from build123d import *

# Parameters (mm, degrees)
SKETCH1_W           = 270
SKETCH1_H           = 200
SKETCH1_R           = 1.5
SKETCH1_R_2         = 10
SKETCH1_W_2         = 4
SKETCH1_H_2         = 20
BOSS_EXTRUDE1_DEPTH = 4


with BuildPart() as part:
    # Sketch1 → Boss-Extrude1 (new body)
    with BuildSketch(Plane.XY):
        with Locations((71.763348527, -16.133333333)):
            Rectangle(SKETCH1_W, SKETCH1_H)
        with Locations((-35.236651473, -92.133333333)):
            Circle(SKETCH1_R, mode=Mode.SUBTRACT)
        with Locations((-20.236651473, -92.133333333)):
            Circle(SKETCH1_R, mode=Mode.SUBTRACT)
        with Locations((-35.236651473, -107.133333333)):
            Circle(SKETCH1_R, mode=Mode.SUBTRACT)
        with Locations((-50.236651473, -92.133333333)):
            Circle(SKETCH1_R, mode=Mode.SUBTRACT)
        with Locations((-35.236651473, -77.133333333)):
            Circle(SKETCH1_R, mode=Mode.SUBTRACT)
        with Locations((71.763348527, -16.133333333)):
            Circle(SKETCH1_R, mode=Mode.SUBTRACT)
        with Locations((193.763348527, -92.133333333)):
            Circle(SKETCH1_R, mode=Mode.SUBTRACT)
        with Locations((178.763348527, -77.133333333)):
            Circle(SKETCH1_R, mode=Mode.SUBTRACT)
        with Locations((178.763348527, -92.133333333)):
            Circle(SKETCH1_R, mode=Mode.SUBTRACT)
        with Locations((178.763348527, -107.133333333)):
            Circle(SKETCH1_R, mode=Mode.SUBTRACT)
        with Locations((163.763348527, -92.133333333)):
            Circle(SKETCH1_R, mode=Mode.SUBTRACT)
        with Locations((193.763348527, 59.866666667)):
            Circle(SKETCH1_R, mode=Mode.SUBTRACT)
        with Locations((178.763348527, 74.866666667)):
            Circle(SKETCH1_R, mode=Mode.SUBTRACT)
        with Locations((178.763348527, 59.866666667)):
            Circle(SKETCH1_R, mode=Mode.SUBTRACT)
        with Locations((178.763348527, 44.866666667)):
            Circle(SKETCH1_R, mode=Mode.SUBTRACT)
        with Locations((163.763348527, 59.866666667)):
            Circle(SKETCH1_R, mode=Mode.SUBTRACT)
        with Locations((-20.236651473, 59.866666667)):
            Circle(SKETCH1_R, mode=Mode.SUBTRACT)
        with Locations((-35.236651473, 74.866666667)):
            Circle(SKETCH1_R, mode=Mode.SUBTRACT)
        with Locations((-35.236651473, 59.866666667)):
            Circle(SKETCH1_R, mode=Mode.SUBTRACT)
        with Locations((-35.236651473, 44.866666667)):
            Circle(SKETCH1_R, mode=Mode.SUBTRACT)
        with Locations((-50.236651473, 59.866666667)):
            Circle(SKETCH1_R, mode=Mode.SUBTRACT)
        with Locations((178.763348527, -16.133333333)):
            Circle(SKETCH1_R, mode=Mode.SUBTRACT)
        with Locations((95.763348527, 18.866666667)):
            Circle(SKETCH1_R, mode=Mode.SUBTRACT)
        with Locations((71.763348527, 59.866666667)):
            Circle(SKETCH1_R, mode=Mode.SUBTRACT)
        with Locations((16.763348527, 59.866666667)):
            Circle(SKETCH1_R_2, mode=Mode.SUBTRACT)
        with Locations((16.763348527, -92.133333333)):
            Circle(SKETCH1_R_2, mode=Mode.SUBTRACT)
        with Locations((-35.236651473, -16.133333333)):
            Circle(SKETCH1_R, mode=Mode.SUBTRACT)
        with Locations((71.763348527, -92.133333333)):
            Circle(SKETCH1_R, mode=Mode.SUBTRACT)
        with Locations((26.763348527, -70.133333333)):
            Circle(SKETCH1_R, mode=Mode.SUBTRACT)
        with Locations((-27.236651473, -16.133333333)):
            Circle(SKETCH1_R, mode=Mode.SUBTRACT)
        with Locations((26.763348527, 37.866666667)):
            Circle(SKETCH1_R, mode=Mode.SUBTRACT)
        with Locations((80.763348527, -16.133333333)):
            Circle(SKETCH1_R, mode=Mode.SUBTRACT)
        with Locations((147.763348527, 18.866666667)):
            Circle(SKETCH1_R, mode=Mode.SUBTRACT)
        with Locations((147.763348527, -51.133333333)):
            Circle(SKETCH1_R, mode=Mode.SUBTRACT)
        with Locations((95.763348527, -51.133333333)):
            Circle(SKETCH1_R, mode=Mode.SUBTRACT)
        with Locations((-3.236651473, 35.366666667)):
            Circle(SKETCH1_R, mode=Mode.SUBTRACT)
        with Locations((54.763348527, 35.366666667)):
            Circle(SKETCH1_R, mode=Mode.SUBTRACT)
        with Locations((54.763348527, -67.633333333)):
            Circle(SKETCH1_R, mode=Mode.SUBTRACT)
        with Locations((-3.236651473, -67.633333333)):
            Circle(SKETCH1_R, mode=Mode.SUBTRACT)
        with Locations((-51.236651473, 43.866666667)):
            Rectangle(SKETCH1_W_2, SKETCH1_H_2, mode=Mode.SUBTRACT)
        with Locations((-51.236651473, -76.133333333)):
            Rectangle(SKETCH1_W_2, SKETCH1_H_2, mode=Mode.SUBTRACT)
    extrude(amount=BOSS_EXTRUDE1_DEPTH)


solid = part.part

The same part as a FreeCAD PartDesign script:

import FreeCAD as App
import Part
import Sketcher
Q = App.Units.Quantity

doc = App.newDocument("Part")
params = doc.addObject("Spreadsheet::Sheet", "Params")
for row, (alias, value) in enumerate([
    ("sketch1_diameter", "3 mm"),
    ("sketch1_diameter2", "20 mm"),
    ("sketch1_width", "270 mm"),
    ("sketch1_width2", "4 mm"),
    ("sketch1_height", "200 mm"),
    ("pad1_length", "4 mm"),
], start=1):
    params.set(f"A{row}", alias)
    params.set(f"B{row}", "=" + value)
    params.setAlias(f"B{row}", alias)

body = doc.addObject("PartDesign::Body", "Body")

# Sketch on XY plane
sketch1 = body.newObject("Sketcher::SketchObject", "Sketch")
sketch1.AttachmentSupport = (doc.getObject("XY_Plane"), [""])
sketch1.MapMode = "FlatFace"
sketch1.addGeometry([
    Part.LineSegment(App.Vector(-63.2, 83.9, 0), App.Vector(-63.2, -116.1, 0)),  # 0
    Part.LineSegment(App.Vector(-63.2, -116.1, 0), App.Vector(206.8, -116.1, 0)),  # 1
    Part.LineSegment(App.Vector(206.8, -116.1, 0), App.Vector(206.8, 83.9, 0)),  # 2
    Part.LineSegment(App.Vector(206.8, 83.9, 0), App.Vector(-63.2, 83.9, 0)),  # 3
    Part.Circle(App.Vector(-35.2, -107.1, 0), App.Vector(0, 0, 1), 1.5),  # 4
    Part.Circle(App.Vector(-50.2, -92.1, 0), App.Vector(0, 0, 1), 1.5),  # 5
    Part.Circle(App.Vector(-35.2, -92.1, 0), App.Vector(0, 0, 1), 1.5),  # 6
    Part.Circle(App.Vector(-20.2, -92.1, 0), App.Vector(0, 0, 1), 1.5),  # 7
    Part.LineSegment(App.Vector(-49.2, -86.1, 0), App.Vector(-53.2, -86.1, 0)),  # 8
    Part.LineSegment(App.Vector(-53.2, -86.1, 0), App.Vector(-53.2, -66.1, 0)),  # 9
    Part.LineSegment(App.Vector(-53.2, -66.1, 0), App.Vector(-49.2, -66.1, 0)),  # 10
    Part.LineSegment(App.Vector(-49.2, -66.1, 0), App.Vector(-49.2, -86.1, 0)),  # 11
    Part.Circle(App.Vector(-35.2, -77.1, 0), App.Vector(0, 0, 1), 1.5),  # 12
    Part.Circle(App.Vector(-3.2, -67.6, 0), App.Vector(0, 0, 1), 1.5),  # 13
    Part.Circle(App.Vector(16.8, -92.1, 0), App.Vector(0, 0, 1), 10),  # 14
    Part.Circle(App.Vector(26.8, -70.1, 0), App.Vector(0, 0, 1), 1.5),  # 15
    Part.Circle(App.Vector(54.8, -67.6, 0), App.Vector(0, 0, 1), 1.5),  # 16
    Part.Circle(App.Vector(71.8, -92.1, 0), App.Vector(0, 0, 1), 1.5),  # 17
    Part.Circle(App.Vector(163.8, -92.1, 0), App.Vector(0, 0, 1), 1.5),  # 18
    Part.Circle(App.Vector(178.8, -107.1, 0), App.Vector(0, 0, 1), 1.5),  # 19
    Part.Circle(App.Vector(178.8, -92.1, 0), App.Vector(0, 0, 1), 1.5),  # 20
    Part.Circle(App.Vector(193.8, -92.1, 0), App.Vector(0, 0, 1), 1.5),  # 21
    Part.Circle(App.Vector(178.8, -77.1, 0), App.Vector(0, 0, 1), 1.5),  # 22
    Part.Circle(App.Vector(95.8, -51.1, 0), App.Vector(0, 0, 1), 1.5),  # 23
    Part.Circle(App.Vector(147.8, -51.1, 0), App.Vector(0, 0, 1), 1.5),  # 24
    Part.Circle(App.Vector(-35.2, -16.1, 0), App.Vector(0, 0, 1), 1.5),  # 25
    Part.Circle(App.Vector(-27.2, -16.1, 0), App.Vector(0, 0, 1), 1.5),  # 26
    Part.LineSegment(App.Vector(-49.2, 33.9, 0), App.Vector(-53.2, 33.9, 0)),  # 27
    Part.LineSegment(App.Vector(-53.2, 33.9, 0), App.Vector(-53.2, 53.9, 0)),  # 28
    Part.LineSegment(App.Vector(-53.2, 53.9, 0), App.Vector(-49.2, 53.9, 0)),  # 29
    Part.LineSegment(App.Vector(-49.2, 53.9, 0), App.Vector(-49.2, 33.9, 0)),  # 30
    Part.Circle(App.Vector(-35.2, 44.9, 0), App.Vector(0, 0, 1), 1.5),  # 31
    Part.Circle(App.Vector(-3.2, 35.4, 0), App.Vector(0, 0, 1), 1.5),  # 32
    Part.Circle(App.Vector(-50.2, 59.9, 0), App.Vector(0, 0, 1), 1.5),  # 33
    Part.Circle(App.Vector(-35.2, 59.9, 0), App.Vector(0, 0, 1), 1.5),  # 34
    Part.Circle(App.Vector(-35.2, 74.9, 0), App.Vector(0, 0, 1), 1.5),  # 35
    Part.Circle(App.Vector(-20.2, 59.9, 0), App.Vector(0, 0, 1), 1.5),  # 36
    Part.Circle(App.Vector(26.8, 37.9, 0), App.Vector(0, 0, 1), 1.5),  # 37
    Part.Circle(App.Vector(54.8, 35.4, 0), App.Vector(0, 0, 1), 1.5),  # 38
    Part.Circle(App.Vector(16.8, 59.9, 0), App.Vector(0, 0, 1), 10),  # 39
    Part.Circle(App.Vector(71.8, -16.1, 0), App.Vector(0, 0, 1), 1.5),  # 40
    Part.Circle(App.Vector(80.8, -16.1, 0), App.Vector(0, 0, 1), 1.5),  # 41
    Part.Circle(App.Vector(95.8, 18.9, 0), App.Vector(0, 0, 1), 1.5),  # 42
    Part.Circle(App.Vector(178.8, -16.1, 0), App.Vector(0, 0, 1), 1.5),  # 43
    Part.Circle(App.Vector(147.8, 18.9, 0), App.Vector(0, 0, 1), 1.5),  # 44
    Part.Circle(App.Vector(71.8, 59.9, 0), App.Vector(0, 0, 1), 1.5),  # 45
    Part.Circle(App.Vector(178.8, 44.9, 0), App.Vector(0, 0, 1), 1.5),  # 46
    Part.Circle(App.Vector(163.8, 59.9, 0), App.Vector(0, 0, 1), 1.5),  # 47
    Part.Circle(App.Vector(178.8, 59.9, 0), App.Vector(0, 0, 1), 1.5),  # 48
    Part.Circle(App.Vector(193.8, 59.9, 0), App.Vector(0, 0, 1), 1.5),  # 49
    Part.Circle(App.Vector(178.8, 74.9, 0), App.Vector(0, 0, 1), 1.5),  # 50
], False)
sketch1.addConstraint([
    Sketcher.Constraint("Coincident", 0, 2, 1, 1),
    Sketcher.Constraint("Coincident", 1, 2, 2, 1),
    Sketcher.Constraint("Coincident", 2, 2, 3, 1),
    Sketcher.Constraint("Coincident", 3, 2, 0, 1),
    Sketcher.Constraint("Coincident", 8, 2, 9, 1),
    Sketcher.Constraint("Coincident", 9, 2, 10, 1),
    Sketcher.Constraint("Coincident", 10, 2, 11, 1),
    Sketcher.Constraint("Coincident", 11, 2, 8, 1),
    Sketcher.Constraint("Coincident", 27, 2, 28, 1),
    Sketcher.Constraint("Coincident", 28, 2, 29, 1),
    Sketcher.Constraint("Coincident", 29, 2, 30, 1),
    Sketcher.Constraint("Coincident", 30, 2, 27, 1),
    Sketcher.Constraint("Vertical", 0),
    Sketcher.Constraint("Horizontal", 1),
    Sketcher.Constraint("Vertical", 2),
    Sketcher.Constraint("Horizontal", 3),
    Sketcher.Constraint("Horizontal", 8),
    Sketcher.Constraint("Vertical", 9),
    Sketcher.Constraint("Horizontal", 10),
    Sketcher.Constraint("Vertical", 11),
    Sketcher.Constraint("Horizontal", 27),
    Sketcher.Constraint("Vertical", 28),
    Sketcher.Constraint("Horizontal", 29),
    Sketcher.Constraint("Vertical", 30),
    Sketcher.Constraint("Equal", 4, 5),
    Sketcher.Constraint("Equal", 5, 6),
    Sketcher.Constraint("Equal", 6, 7),
    Sketcher.Constraint("Equal", 7, 12),
    Sketcher.Constraint("Equal", 12, 13),
    Sketcher.Constraint("Equal", 13, 15),
    Sketcher.Constraint("Equal", 15, 16),
    Sketcher.Constraint("Equal", 16, 17),
    Sketcher.Constraint("Equal", 17, 18),
    Sketcher.Constraint("Equal", 18, 19),
    Sketcher.Constraint("Equal", 19, 20),
    Sketcher.Constraint("Equal", 20, 21),
    Sketcher.Constraint("Equal", 21, 22),
    Sketcher.Constraint("Equal", 22, 23),
    Sketcher.Constraint("Equal", 23, 24),
    Sketcher.Constraint("Equal", 24, 25),
    Sketcher.Constraint("Equal", 25, 26),
    Sketcher.Constraint("Equal", 26, 31),
    Sketcher.Constraint("Equal", 31, 32),
    Sketcher.Constraint("Equal", 32, 33),
    Sketcher.Constraint("Equal", 33, 34),
    Sketcher.Constraint("Equal", 34, 35),
    Sketcher.Constraint("Equal", 35, 36),
    Sketcher.Constraint("Equal", 36, 37),
    Sketcher.Constraint("Equal", 37, 38),
    Sketcher.Constraint("Equal", 14, 39),
    Sketcher.Constraint("Equal", 38, 40),
    Sketcher.Constraint("Equal", 40, 41),
    Sketcher.Constraint("Equal", 41, 42),
    Sketcher.Constraint("Equal", 42, 43),
    Sketcher.Constraint("Equal", 43, 44),
    Sketcher.Constraint("Equal", 44, 45),
    Sketcher.Constraint("Equal", 45, 46),
    Sketcher.Constraint("Equal", 46, 47),
    Sketcher.Constraint("Equal", 47, 48),
    Sketcher.Constraint("Equal", 48, 49),
    Sketcher.Constraint("Equal", 49, 50),
    Sketcher.Constraint("Horizontal", 5, 3, 6, 3),
    Sketcher.Constraint("Horizontal", 6, 3, 7, 3),
    Sketcher.Constraint("Horizontal", 7, 3, 14, 3),
    Sketcher.Constraint("Horizontal", 13, 3, 16, 3),
    Sketcher.Constraint("Horizontal", 14, 3, 17, 3),
    Sketcher.Constraint("Horizontal", 17, 3, 18, 3),
    Sketcher.Constraint("Horizontal", 4, 3, 19, 3),
    Sketcher.Constraint("Horizontal", 18, 3, 20, 3),
    Sketcher.Constraint("Horizontal", 20, 3, 21, 3),
    Sketcher.Constraint("Horizontal", 12, 3, 22, 3),
    Sketcher.Constraint("Horizontal", 23, 3, 24, 3),
    Sketcher.Constraint("Horizontal", 25, 3, 26, 3),
    Sketcher.Constraint("Horizontal", 33, 3, 34, 3),
    Sketcher.Constraint("Horizontal", 34, 3, 36, 3),
    Sketcher.Constraint("Horizontal", 32, 3, 38, 3),
    Sketcher.Constraint("Horizontal", 36, 3, 39, 3),
    Sketcher.Constraint("Horizontal", 26, 3, 40, 3),
    Sketcher.Constraint("Horizontal", 40, 3, 41, 3),
    Sketcher.Constraint("Horizontal", 41, 3, 43, 3),
    Sketcher.Constraint("Horizontal", 42, 3, 44, 3),
    Sketcher.Constraint("Horizontal", 39, 3, 45, 3),
    Sketcher.Constraint("Horizontal", 31, 3, 46, 3),
    Sketcher.Constraint("Horizontal", 45, 3, 47, 3),
    Sketcher.Constraint("Horizontal", 47, 3, 48, 3),
    Sketcher.Constraint("Horizontal", 48, 3, 49, 3),
    Sketcher.Constraint("Horizontal", 35, 3, 50, 3),
    Sketcher.Constraint("Vertical", 4, 3, 6, 3),
    Sketcher.Constraint("Vertical", 6, 3, 12, 3),
    Sketcher.Constraint("Vertical", 19, 3, 20, 3),
    Sketcher.Constraint("Vertical", 20, 3, 22, 3),
    Sketcher.Constraint("Vertical", 12, 3, 25, 3),
    Sketcher.Constraint("Vertical", 25, 3, 31, 3),
    Sketcher.Constraint("Vertical", 13, 3, 32, 3),
    Sketcher.Constraint("Vertical", 5, 3, 33, 3),
    Sketcher.Constraint("Vertical", 31, 3, 34, 3),
    Sketcher.Constraint("Vertical", 34, 3, 35, 3),
    Sketcher.Constraint("Vertical", 7, 3, 36, 3),
    Sketcher.Constraint("Vertical", 15, 3, 37, 3),
    Sketcher.Constraint("Vertical", 16, 3, 38, 3),
    Sketcher.Constraint("Vertical", 14, 3, 39, 3),
    Sketcher.Constraint("Vertical", 17, 3, 40, 3),
    Sketcher.Constraint("Vertical", 23, 3, 42, 3),
    Sketcher.Constraint("Vertical", 22, 3, 43, 3),
    Sketcher.Constraint("Vertical", 24, 3, 44, 3),
    Sketcher.Constraint("Vertical", 40, 3, 45, 3),
    Sketcher.Constraint("Vertical", 43, 3, 46, 3),
    Sketcher.Constraint("Vertical", 18, 3, 47, 3),
    Sketcher.Constraint("Vertical", 46, 3, 48, 3),
    Sketcher.Constraint("Vertical", 21, 3, 49, 3),
    Sketcher.Constraint("Vertical", 48, 3, 50, 3),
    Sketcher.Constraint("Vertical", 9, 2, 27, 2),
    Sketcher.Constraint("Vertical", 11, 2, 29, 2),
    Sketcher.Constraint("Equal", 11, 28),
    Sketcher.Constraint("Diameter", 4, Q("3 mm")),
    Sketcher.Constraint("Diameter", 14, Q("20 mm")),
    Sketcher.Constraint("DistanceX", 1, 1, 1, 2, Q("270 mm")),
    Sketcher.Constraint("DistanceX", 8, 2, 8, 1, Q("4 mm")),
    Sketcher.Constraint("DistanceY", 0, 2, 0, 1, Q("200 mm")),
    Sketcher.Constraint("DistanceY", 9, 1, 9, 2, Q("20 mm")),
    Sketcher.Constraint("DistanceX", 5, 3, 4, 3, Q("15 mm")),
    Sketcher.Constraint("DistanceY", 4, 3, 5, 3, Q("15 mm")),
    Sketcher.Constraint("DistanceX", 6, 3, 7, 3, Q("15 mm")),
    Sketcher.Constraint("DistanceY", 6, 3, 12, 3, Q("15 mm")),
    Sketcher.Constraint("DistanceX", 7, 3, 13, 3, Q("17 mm")),
    Sketcher.Constraint("DistanceX", 13, 3, 14, 3, Q("20 mm")),
    Sketcher.Constraint("DistanceX", 14, 3, 15, 3, Q("10 mm")),
    Sketcher.Constraint("DistanceY", 14, 3, 15, 3, Q("22 mm")),
    Sketcher.Constraint("DistanceX", 15, 3, 16, 3, Q("28 mm")),
    Sketcher.Constraint("DistanceX", 16, 3, 17, 3, Q("17 mm")),
    Sketcher.Constraint("DistanceX", 17, 3, 18, 3, Q("92 mm")),
    Sketcher.Constraint("DistanceX", 18, 3, 19, 3, Q("15 mm")),
    Sketcher.Constraint("DistanceX", 20, 3, 21, 3, Q("15 mm")),
    Sketcher.Constraint("DistanceX", 16, 3, 23, 3, Q("41 mm")),
    Sketcher.Constraint("DistanceY", 17, 3, 23, 3, Q("41 mm")),
    Sketcher.Constraint("DistanceX", 24, 3, 22, 3, Q("31 mm")),
    Sketcher.Constraint("DistanceY", 12, 3, 25, 3, Q("61 mm")),
    Sketcher.Constraint("DistanceX", 25, 3, 26, 3, Q("8 mm")),
    Sketcher.Constraint("DistanceY", 25, 3, 31, 3, Q("61 mm")),
    Sketcher.Constraint("DistanceY", 13, 3, 32, 3, Q("103 mm")),
    Sketcher.Constraint("DistanceY", 31, 3, 33, 3, Q("15 mm")),
    Sketcher.Constraint("DistanceY", 34, 3, 35, 3, Q("15 mm")),
    Sketcher.Constraint("DistanceY", 37, 3, 36, 3, Q("22 mm")),
    Sketcher.Constraint("DistanceX", 40, 3, 41, 3, Q("9 mm")),
    Sketcher.Constraint("DistanceY", 41, 3, 42, 3, Q("35 mm")),
    Sketcher.Constraint("DistanceX", 0, 2, 5, 3, Q("13 mm")),
    Sketcher.Constraint("DistanceY", 0, 2, 5, 3, Q("24 mm")),
    Sketcher.Constraint("DistanceX", 8, 2, 5, 3, Q("3 mm")),
    Sketcher.Constraint("DistanceY", 5, 3, 8, 2, Q("6 mm")),
    Sketcher.Constraint("DistanceY", 27, 2, 31, 3, Q("11 mm")),
    Sketcher.Constraint("DistanceY", 7, 3, 13, 3, Q("24.5 mm")),
    Sketcher.Constraint("DistanceX", 4, 3, -1, 1, Q("35.236651 mm")),
    Sketcher.Constraint("DistanceY", 4, 3, -1, 1, Q("107.133333 mm")),
])
sketch1.setExpression("Constraints[114]", "Params.sketch1_diameter")
sketch1.setExpression("Constraints[115]", "Params.sketch1_diameter2")
sketch1.setExpression("Constraints[116]", "Params.sketch1_width")
sketch1.setExpression("Constraints[117]", "Params.sketch1_width2")
sketch1.setExpression("Constraints[118]", "Params.sketch1_height")
pad1 = body.newObject("PartDesign::Pad", "Pad")
pad1.Profile = sketch1
pad1.setExpression("Length", "Params.pad1_length")

doc.recompute()
